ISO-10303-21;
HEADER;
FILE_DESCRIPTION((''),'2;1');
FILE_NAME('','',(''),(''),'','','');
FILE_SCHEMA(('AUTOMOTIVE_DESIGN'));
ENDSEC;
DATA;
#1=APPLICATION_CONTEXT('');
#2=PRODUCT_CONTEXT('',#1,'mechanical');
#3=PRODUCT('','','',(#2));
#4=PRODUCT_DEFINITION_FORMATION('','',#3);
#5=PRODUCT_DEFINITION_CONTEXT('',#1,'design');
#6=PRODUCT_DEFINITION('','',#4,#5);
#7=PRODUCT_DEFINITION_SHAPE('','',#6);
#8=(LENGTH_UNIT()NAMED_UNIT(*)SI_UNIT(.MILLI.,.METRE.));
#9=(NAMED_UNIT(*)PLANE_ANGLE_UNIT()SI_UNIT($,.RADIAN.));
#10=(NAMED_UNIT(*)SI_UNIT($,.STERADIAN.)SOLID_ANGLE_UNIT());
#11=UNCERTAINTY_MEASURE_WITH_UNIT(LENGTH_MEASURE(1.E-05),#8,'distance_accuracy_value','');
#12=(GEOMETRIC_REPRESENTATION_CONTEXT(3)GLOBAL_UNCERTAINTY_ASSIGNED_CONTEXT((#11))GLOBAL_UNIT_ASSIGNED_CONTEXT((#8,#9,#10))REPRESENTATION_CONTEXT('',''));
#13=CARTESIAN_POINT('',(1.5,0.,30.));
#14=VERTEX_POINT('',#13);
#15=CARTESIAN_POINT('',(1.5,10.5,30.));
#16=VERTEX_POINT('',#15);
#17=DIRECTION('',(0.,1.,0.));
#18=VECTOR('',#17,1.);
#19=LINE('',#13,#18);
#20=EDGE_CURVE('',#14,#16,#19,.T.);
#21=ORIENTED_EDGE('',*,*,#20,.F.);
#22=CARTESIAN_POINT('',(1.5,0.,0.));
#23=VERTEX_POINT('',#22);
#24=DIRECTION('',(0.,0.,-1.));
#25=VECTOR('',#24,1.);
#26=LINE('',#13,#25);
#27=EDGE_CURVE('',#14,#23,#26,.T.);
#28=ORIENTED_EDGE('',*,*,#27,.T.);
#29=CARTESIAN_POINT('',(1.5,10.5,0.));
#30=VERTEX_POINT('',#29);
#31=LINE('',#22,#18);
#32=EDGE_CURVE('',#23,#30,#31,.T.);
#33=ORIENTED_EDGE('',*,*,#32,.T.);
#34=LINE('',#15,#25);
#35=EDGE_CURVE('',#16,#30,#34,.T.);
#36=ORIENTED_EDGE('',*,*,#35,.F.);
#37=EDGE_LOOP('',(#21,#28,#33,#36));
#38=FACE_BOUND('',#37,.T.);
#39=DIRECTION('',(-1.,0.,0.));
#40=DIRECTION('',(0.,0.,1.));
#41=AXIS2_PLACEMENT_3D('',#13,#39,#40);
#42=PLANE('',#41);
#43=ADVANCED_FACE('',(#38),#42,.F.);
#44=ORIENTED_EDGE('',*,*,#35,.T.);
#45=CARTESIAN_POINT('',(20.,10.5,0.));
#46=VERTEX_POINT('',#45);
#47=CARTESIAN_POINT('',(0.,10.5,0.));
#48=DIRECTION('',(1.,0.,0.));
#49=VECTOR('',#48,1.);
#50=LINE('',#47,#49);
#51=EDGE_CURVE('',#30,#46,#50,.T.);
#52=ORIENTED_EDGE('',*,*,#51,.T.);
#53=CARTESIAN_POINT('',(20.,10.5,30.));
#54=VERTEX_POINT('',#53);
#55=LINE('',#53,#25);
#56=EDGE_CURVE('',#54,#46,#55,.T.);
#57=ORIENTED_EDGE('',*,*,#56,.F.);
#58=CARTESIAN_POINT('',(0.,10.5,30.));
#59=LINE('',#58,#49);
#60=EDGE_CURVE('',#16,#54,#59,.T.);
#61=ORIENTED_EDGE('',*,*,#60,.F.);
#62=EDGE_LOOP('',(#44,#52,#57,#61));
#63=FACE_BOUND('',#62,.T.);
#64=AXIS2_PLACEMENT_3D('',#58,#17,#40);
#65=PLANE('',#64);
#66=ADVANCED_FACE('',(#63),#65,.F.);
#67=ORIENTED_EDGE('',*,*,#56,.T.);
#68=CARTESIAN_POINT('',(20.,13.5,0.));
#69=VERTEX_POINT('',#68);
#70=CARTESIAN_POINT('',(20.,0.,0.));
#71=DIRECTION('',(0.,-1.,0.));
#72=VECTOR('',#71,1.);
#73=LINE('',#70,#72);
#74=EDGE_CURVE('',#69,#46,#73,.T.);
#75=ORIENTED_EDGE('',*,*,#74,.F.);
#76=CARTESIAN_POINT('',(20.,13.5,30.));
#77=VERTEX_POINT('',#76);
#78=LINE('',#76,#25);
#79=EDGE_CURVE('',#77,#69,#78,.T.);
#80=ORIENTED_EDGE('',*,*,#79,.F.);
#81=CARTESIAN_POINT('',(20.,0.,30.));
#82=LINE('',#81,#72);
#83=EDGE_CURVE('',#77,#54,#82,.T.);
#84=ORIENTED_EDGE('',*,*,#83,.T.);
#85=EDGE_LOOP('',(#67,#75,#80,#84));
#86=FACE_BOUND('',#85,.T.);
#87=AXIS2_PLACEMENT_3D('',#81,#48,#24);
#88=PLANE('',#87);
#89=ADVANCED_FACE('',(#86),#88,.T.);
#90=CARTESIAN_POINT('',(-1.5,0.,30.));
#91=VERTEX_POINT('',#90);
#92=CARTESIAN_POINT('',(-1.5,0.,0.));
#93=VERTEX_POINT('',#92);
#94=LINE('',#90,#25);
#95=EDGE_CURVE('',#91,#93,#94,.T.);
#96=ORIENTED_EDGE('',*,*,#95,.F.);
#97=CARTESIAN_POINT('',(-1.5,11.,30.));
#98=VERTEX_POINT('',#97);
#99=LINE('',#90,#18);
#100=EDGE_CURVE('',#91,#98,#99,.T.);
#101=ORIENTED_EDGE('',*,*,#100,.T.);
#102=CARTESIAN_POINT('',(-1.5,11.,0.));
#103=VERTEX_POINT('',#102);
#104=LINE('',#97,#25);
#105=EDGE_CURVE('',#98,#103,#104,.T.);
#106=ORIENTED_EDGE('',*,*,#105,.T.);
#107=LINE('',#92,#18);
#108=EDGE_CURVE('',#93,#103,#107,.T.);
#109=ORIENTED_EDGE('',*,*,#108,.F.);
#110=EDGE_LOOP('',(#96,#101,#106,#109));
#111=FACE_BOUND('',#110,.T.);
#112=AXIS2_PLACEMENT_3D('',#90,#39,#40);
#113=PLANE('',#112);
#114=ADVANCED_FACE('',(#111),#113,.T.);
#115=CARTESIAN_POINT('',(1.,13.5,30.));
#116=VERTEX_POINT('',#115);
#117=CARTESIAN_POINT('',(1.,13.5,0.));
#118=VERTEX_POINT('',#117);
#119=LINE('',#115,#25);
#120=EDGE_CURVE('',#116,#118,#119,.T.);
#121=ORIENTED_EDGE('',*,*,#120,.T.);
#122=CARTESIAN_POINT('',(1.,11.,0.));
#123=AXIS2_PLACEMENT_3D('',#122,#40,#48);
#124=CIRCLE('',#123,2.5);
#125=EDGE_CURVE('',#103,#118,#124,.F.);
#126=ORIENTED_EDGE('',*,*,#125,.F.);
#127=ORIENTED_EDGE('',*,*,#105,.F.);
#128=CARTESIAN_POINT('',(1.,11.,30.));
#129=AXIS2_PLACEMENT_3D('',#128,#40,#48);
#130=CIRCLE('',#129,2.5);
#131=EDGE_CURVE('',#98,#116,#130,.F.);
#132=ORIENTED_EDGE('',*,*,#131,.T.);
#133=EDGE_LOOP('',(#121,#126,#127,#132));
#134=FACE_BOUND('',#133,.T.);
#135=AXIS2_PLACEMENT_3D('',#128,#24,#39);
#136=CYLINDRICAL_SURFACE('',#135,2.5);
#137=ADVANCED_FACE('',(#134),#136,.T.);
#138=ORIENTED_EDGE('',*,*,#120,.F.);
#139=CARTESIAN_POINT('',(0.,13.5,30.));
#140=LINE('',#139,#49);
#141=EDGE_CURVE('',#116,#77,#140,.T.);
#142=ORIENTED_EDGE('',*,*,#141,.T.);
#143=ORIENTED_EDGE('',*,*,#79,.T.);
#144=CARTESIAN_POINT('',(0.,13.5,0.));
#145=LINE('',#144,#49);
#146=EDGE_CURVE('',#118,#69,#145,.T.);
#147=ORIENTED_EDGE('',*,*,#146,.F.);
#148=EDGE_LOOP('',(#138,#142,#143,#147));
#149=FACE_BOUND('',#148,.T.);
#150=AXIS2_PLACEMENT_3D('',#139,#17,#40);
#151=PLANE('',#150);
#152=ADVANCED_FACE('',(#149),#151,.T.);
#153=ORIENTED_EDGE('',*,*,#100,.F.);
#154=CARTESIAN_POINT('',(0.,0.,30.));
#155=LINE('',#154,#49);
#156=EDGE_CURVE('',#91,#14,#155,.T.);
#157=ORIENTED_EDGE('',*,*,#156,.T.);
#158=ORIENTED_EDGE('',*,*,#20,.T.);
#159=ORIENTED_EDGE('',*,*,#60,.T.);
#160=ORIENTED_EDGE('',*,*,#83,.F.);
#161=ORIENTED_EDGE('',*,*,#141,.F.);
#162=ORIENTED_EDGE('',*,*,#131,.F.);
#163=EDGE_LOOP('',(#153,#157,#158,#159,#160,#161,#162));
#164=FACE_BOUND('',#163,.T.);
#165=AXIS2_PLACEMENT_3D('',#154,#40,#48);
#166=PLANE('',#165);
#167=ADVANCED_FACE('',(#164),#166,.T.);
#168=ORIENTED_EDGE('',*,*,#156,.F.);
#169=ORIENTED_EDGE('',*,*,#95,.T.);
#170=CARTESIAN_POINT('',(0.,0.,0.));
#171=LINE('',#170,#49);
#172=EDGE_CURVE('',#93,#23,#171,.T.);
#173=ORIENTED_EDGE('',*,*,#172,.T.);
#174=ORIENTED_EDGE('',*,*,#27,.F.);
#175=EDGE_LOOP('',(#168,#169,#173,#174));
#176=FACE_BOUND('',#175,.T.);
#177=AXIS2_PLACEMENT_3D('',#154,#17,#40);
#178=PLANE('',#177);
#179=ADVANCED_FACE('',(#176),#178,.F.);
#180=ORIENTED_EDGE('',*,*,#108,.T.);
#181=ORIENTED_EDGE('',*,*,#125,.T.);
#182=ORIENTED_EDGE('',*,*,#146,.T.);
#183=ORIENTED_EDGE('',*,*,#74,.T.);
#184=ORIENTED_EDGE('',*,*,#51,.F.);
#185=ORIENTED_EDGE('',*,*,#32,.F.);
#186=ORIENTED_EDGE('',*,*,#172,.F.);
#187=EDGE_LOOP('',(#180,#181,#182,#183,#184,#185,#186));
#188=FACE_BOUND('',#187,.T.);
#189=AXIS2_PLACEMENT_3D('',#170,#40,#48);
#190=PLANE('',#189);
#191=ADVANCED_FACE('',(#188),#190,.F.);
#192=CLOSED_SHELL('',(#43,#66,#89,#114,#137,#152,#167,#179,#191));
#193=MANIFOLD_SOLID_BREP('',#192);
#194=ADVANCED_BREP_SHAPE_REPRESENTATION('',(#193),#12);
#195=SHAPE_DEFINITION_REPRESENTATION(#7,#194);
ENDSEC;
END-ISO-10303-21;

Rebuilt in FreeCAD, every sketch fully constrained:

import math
import FreeCAD as App
import Part
import Sketcher
from FreeCAD import Vector
Q = App.Units.Quantity

doc = App.newDocument("Part")
body = doc.addObject("PartDesign::Body", "Body")

sketch1 = body.newObject("Sketcher::SketchObject", "Sketch")
sketch1.AttachmentSupport = (doc.getObject("XY_Plane"), [""])
sketch1.MapMode = "FlatFace"
sketch1.addGeometry(Part.LineSegment(Vector(1.5, 0, 0), Vector(1.5, 10.5, 0)), False)
sketch1.addGeometry(Part.LineSegment(Vector(1.5, 10.5, 0), Vector(20, 10.5, 0)), False)
sketch1.addGeometry(Part.LineSegment(Vector(20, 10.5, 0), Vector(20, 13.5, 0)), False)
sketch1.addGeometry(Part.LineSegment(Vector(20, 13.5, 0), Vector(1, 13.5, 0)), False)
sketch1.addGeometry(Part.ArcOfCircle(Part.Circle(Vector(1, 11, 0), Vector(0, 0, 1), 2.5), math.radians(90), math.radians(180)), False)
sketch1.addGeometry(Part.LineSegment(Vector(-1.5, 11, 0), Vector(-1.5, 0, 0)), False)
sketch1.addGeometry(Part.LineSegment(Vector(-1.5, 0, 0), Vector(1.5, 0, 0)), False)
sketch1.addConstraint(Sketcher.Constraint("Coincident", 0, 2, 1, 1))
sketch1.addConstraint(Sketcher.Constraint("Coincident", 1, 2, 2, 1))
sketch1.addConstraint(Sketcher.Constraint("Coincident", 2, 2, 3, 1))
sketch1.addConstraint(Sketcher.Constraint("Tangent", 3, 2, 4, 1))
sketch1.addConstraint(Sketcher.Constraint("Tangent", 4, 2, 5, 1))
sketch1.addConstraint(Sketcher.Constraint("Coincident", 5, 2, 6, 1))
sketch1.addConstraint(Sketcher.Constraint("Coincident", 6, 2, 0, 1))
sketch1.addConstraint(Sketcher.Constraint("Vertical", 0))
sketch1.addConstraint(Sketcher.Constraint("Horizontal", 1))
sketch1.addConstraint(Sketcher.Constraint("Vertical", 2))
sketch1.addConstraint(Sketcher.Constraint("Horizontal", 3))
sketch1.addConstraint(Sketcher.Constraint("Vertical", 5))
sketch1.addConstraint(Sketcher.Constraint("Horizontal", 6))
sketch1.addConstraint(Sketcher.Constraint("Symmetric", 5, 2, 6, 2, -1, 1))
sketch1.addConstraint(Sketcher.Constraint("Equal", 6, 2))
sketch1.addConstraint(Sketcher.Constraint("Radius", 4, Q("2.5 mm")))
sketch1.addConstraint(Sketcher.Constraint("DistanceX", 3, 2, 3, 1, Q("19 mm")))
sketch1.addConstraint(Sketcher.Constraint("DistanceX", 6, 1, 6, 2, Q("3 mm")))
sketch1.addConstraint(Sketcher.Constraint("DistanceY", 5, 2, 5, 1, Q("11 mm")))
pad1 = body.newObject("PartDesign::Pad", "Pad")
pad1.Profile = sketch1
pad1.Length = 30

doc.recompute()
